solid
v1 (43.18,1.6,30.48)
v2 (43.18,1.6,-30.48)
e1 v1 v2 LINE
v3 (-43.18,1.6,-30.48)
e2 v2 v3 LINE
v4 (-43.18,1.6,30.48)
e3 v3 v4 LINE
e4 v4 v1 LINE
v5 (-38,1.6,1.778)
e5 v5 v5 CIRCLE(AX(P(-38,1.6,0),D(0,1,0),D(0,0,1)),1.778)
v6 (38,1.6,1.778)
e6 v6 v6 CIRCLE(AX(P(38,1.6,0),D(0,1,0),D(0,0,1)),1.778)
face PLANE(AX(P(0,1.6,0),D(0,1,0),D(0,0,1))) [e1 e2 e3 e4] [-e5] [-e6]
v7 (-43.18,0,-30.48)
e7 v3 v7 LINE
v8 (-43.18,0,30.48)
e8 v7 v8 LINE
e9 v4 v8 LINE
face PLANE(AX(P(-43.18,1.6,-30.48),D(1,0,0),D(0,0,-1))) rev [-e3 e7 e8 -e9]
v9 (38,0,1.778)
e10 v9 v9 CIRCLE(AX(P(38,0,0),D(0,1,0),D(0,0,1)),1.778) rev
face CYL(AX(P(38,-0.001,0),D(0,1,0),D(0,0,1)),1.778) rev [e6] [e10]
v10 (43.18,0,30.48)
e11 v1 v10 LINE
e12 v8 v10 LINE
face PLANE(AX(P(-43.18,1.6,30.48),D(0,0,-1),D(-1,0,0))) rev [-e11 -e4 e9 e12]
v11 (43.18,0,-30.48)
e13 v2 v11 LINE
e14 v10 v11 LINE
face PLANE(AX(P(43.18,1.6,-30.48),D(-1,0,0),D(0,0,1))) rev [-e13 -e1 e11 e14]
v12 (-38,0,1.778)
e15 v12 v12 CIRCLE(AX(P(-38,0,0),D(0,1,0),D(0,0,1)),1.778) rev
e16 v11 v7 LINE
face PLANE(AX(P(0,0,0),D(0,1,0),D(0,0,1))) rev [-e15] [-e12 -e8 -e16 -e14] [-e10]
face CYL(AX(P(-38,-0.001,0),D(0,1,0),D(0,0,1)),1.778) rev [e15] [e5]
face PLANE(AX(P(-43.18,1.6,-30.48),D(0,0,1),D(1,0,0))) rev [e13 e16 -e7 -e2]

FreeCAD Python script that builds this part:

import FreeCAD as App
import Part
import Sketcher
from FreeCAD import Vector
Q = App.Units.Quantity


def add_polygon(sketch, points):
    """Adds a closed chain of lines whose ends are joined by coincident constraints."""
    first, n = sketch.GeometryCount, len(points)
    for a, b in zip(points, points[1:] + points[:1]):
        sketch.addGeometry(Part.LineSegment(App.Vector(*a, 0), App.Vector(*b, 0)), False)
    for i in range(n):
        sketch.addConstraint(Sketcher.Constraint("Coincident", first + i, 2, first + (i + 1) % n, 1))

doc = App.newDocument("Part")
body = doc.addObject("PartDesign::Body", "Body")

# Sketch on XZ plane
sketch1 = body.newObject("Sketcher::SketchObject", "Sketch")
sketch1.AttachmentSupport = (doc.getObject("XZ_Plane"), [""])
sketch1.MapMode = "FlatFace"
add_polygon(sketch1, [(-43.18, -30.48), (-43.18, 30.48), (43.18, 30.48), (43.18, -30.48)])  # lines 0-3
sketch1.addConstraint(Sketcher.Constraint("Vertical", 0))
sketch1.addConstraint(Sketcher.Constraint("Horizontal", 1))
sketch1.addConstraint(Sketcher.Constraint("Vertical", 2))
sketch1.addConstraint(Sketcher.Constraint("Horizontal", 3))
sketch1.addConstraint(Sketcher.Constraint("Symmetric", 0, 2, 2, 2, -1, 1))
sketch1.addConstraint(Sketcher.Constraint("DistanceX", 1, 1, 1, 2, Q("3.4 in")))
sketch1.addConstraint(Sketcher.Constraint("DistanceY", 0, 1, 0, 2, Q("2.4 in")))
pad1 = body.newObject("PartDesign::Pad", "Pad")
pad1.Profile = sketch1
pad1.Length = 1.6
pad1.Reversed = True

# Sketch on XZ plane
sketch2 = body.newObject("Sketcher::SketchObject", "Sketch001")
sketch2.AttachmentSupport = (doc.getObject("XZ_Plane"), [""])
sketch2.MapMode = "FlatFace"
sketch2.AttachmentOffset = App.Placement(Vector(0, 0, -1.6), App.Rotation())
sketch2.addGeometry(Part.Circle(Vector(-38, 0, 0), Vector(0, 0, 1), 1.778), False)
sketch2.addConstraint(Sketcher.Constraint("PointOnObject", 0, 3, -1))
sketch2.addConstraint(Sketcher.Constraint("Diameter", 0, Q("0.14 in")))
sketch2.addConstraint(Sketcher.Constraint("DistanceX", 0, 3, -1, 1, Q("38 mm")))
pocket1 = body.newObject("PartDesign::Pocket", "Pocket")
pocket1.Profile = sketch2
pocket1.Type = "UpToFirst"
pocket1.Reversed = True

# Sketch on XZ plane
sketch3 = body.newObject("Sketcher::SketchObject", "Sketch002")
sketch3.AttachmentSupport = (doc.getObject("XZ_Plane"), [""])
sketch3.MapMode = "FlatFace"
sketch3.AttachmentOffset = App.Placement(Vector(0, 0, -1.6), App.Rotation())
sketch3.addGeometry(Part.Circle(Vector(38, 0, 0), Vector(0, 0, 1), 1.778), False)
sketch3.addConstraint(Sketcher.Constraint("PointOnObject", 0, 3, -1))
sketch3.addConstraint(Sketcher.Constraint("Diameter", 0, Q("0.14 in")))
sketch3.addConstraint(Sketcher.Constraint("DistanceX", -1, 1, 0, 3, Q("38 mm")))
pocket2 = body.newObject("PartDesign::Pocket", "Pocket001")
pocket2.Profile = sketch3
pocket2.Type = "UpToFirst"
pocket2.Reversed = True

doc.recompute()
